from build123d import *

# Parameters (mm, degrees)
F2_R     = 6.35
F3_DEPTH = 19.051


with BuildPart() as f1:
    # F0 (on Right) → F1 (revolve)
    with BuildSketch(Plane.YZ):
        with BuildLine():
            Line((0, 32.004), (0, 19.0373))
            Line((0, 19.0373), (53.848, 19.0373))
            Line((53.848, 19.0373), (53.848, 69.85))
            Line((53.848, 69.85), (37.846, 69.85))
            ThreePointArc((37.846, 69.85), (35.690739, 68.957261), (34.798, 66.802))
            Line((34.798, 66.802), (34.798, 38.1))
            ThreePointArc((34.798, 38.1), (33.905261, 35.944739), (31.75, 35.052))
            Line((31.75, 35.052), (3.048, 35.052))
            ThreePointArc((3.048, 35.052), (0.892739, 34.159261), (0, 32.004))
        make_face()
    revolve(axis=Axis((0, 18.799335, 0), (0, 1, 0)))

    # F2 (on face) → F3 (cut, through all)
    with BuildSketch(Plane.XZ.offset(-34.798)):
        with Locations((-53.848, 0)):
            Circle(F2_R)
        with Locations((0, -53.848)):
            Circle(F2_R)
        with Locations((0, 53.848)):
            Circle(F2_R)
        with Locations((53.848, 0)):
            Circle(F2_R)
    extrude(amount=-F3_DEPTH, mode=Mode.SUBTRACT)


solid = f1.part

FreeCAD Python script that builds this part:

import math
import FreeCAD as App
import Part
import Sketcher

V = App.Vector
Q = App.Units.Quantity

doc = App.newDocument("Part")
body = doc.addObject("PartDesign::Body", "Body")

sketch1 = body.newObject("Sketcher::SketchObject", "Sketch")
sketch1.AttachmentSupport = (doc.getObject("YZ_Plane"), [""])
sketch1.MapMode = "FlatFace"
sketch1.addGeometry([
    Part.LineSegment(V(0, 32.004, 0), V(0, 19.0373, 0)),
    Part.LineSegment(V(0, 19.0373, 0), V(53.848, 19.0373, 0)),
    Part.LineSegment(V(53.848, 19.0373, 0), V(53.848, 69.85, 0)),
    Part.LineSegment(V(53.848, 69.85, 0), V(37.846, 69.85, 0)),
    Part.ArcOfCircle(Part.Circle(V(37.846002, 66.801998, 0), V(0, 0, 1), 3.048002), math.radians(90.00003), math.radians(179.99997)),
    Part.LineSegment(V(34.798, 66.802, 0), V(34.798, 38.1, 0)),
    Part.ArcOfCircle(Part.Circle(V(31.749998, 38.100002, 0), V(0, 0, 1), 3.048002), math.radians(-89.99997), math.radians(-0.00003)),
    Part.LineSegment(V(31.75, 35.052, 0), V(3.048, 35.052, 0)),
    Part.ArcOfCircle(Part.Circle(V(3.048002, 32.003998, 0), V(0, 0, 1), 3.048002), math.radians(90.00003), math.radians(179.99997)),
], False)
sketch1.addConstraint([
    Sketcher.Constraint("Coincident", 0, 2, 1, 1),
    Sketcher.Constraint("Coincident", 1, 2, 2, 1),
    Sketcher.Constraint("Coincident", 2, 2, 3, 1),
    Sketcher.Constraint("Tangent", 3, 2, 4, 1),
    Sketcher.Constraint("Tangent", 4, 2, 5, 1),
    Sketcher.Constraint("Tangent", 5, 2, 6, 2),
    Sketcher.Constraint("Tangent", 6, 1, 7, 1),
    Sketcher.Constraint("Tangent", 7, 2, 8, 1),
    Sketcher.Constraint("Tangent", 8, 2, 0, 1),
    Sketcher.Constraint("Vertical", 0),
    Sketcher.Constraint("Horizontal", 1),
    Sketcher.Constraint("Vertical", 2),
    Sketcher.Constraint("Horizontal", 3),
    Sketcher.Constraint("Vertical", 5),
    Sketcher.Constraint("Horizontal", 7),
    Sketcher.Constraint("Equal", 4, 6),
    Sketcher.Constraint("Equal", 6, 8),
    Sketcher.Constraint("PointOnObject", 0, 2, -2),
    Sketcher.Constraint("Equal", 7, 5),
    Sketcher.Constraint("Radius", 4, Q("0.1200001 in")),
    Sketcher.Constraint("DistanceX", 8, 3, 1, 2, Q("1.9999999 in")),
    Sketcher.Constraint("DistanceX", 3, 2, 3, 1, Q("0.63 in")),
    Sketcher.Constraint("DistanceY", -1, 1, 6, 3, Q("1.5000001 in")),
    Sketcher.Constraint("DistanceY", 0, 2, 0, 1, Q("0.5105 in")),
])
revolution = body.newObject("PartDesign::Revolution", "Revolution")
revolution.Profile = sketch1
revolution.ReferenceAxis = (sketch1, ["H_Axis"])
revolution.Angle = 360

sketch2 = body.newObject("Sketcher::SketchObject", "Sketch001")
sketch2.AttachmentSupport = (doc.getObject("XZ_Plane"), [""])
sketch2.MapMode = "FlatFace"
sketch2.AttachmentOffset = App.Placement(V(0, 0, -1.37 * 25.4), App.Rotation())
sketch2.addGeometry([
    Part.Circle(V(-53.848, 0, 0), V(0, 0, 1), 6.35),
    Part.Circle(V(0, -53.848, 0), V(0, 0, 1), 6.35),
    Part.Circle(V(0, 53.848, 0), V(0, 0, 1), 6.35),
    Part.Circle(V(53.848, 0, 0), V(0, 0, 1), 6.35),
], False)
sketch2.addConstraint([
    Sketcher.Constraint("Equal", 0, 1),
    Sketcher.Constraint("Equal", 1, 2),
    Sketcher.Constraint("Equal", 2, 3),
    Sketcher.Constraint("Symmetric", 1, 3, 2, 3, -1, 1),
    Sketcher.Constraint("Symmetric", 0, 3, 3, 3, -1, 1),
    Sketcher.Constraint("PointOnObject", 0, 3, -1),
    Sketcher.Constraint("PointOnObject", 1, 3, -2),
    Sketcher.Constraint("Diameter", 0, Q("0.5 in")),
    Sketcher.Constraint("DistanceX", 0, 3, -1, 1, Q("2.12 in")),
    Sketcher.Constraint("DistanceY", 1, 3, -1, 1, Q("2.12 in")),
])
pocket1 = body.newObject("PartDesign::Pocket", "Pocket")
pocket1.Profile = sketch2
pocket1.Type = "ThroughAll"

doc.recompute()
